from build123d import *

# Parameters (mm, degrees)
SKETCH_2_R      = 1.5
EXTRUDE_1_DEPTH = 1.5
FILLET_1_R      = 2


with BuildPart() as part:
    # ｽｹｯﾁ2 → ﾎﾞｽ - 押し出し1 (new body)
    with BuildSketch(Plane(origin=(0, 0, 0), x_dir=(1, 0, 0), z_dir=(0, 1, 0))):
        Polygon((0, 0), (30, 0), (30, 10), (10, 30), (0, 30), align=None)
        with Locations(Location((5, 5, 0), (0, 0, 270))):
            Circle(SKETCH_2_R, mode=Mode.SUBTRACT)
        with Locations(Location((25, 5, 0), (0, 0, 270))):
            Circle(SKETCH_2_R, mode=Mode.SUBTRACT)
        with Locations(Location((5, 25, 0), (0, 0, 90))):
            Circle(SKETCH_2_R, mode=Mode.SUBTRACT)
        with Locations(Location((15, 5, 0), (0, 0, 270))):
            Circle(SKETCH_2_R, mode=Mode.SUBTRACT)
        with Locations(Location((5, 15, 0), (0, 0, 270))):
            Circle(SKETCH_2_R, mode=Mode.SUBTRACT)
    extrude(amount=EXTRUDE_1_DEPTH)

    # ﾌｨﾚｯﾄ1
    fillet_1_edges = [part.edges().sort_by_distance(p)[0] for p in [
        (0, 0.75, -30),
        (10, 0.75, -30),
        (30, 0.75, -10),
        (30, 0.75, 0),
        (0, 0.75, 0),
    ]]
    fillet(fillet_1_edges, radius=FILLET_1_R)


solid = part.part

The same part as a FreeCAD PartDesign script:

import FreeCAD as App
import Part
import Sketcher
from FreeCAD import Vector
Q = App.Units.Quantity


def edges_at(feature, points):
    """Names of the edges that pass closest to the given points."""
    edges = feature.Shape.Edges
    near = lambda p: min(range(len(edges)), key=lambda i: edges[i].distToShape(Part.Vertex(*p))[0])
    return sorted({f"Edge{near(p) + 1}" for p in points})


def add_polygon(sketch, points):
    """Adds a closed chain of lines whose ends are joined by coincident constraints."""
    first, n = sketch.GeometryCount, len(points)
    for a, b in zip(points, points[1:] + points[:1]):
        sketch.addGeometry(Part.LineSegment(App.Vector(*a, 0), App.Vector(*b, 0)), False)
    for i in range(n):
        sketch.addConstraint(Sketcher.Constraint("Coincident", first + i, 2, first + (i + 1) % n, 1))

doc = App.newDocument("Part")
body = doc.addObject("PartDesign::Body", "Body")

# Sketch on XZ plane
sketch1 = body.newObject("Sketcher::SketchObject", "Sketch")
sketch1.AttachmentSupport = (doc.getObject("XZ_Plane"), [""])
sketch1.MapMode = "FlatFace"
add_polygon(sketch1, [(0, 0), (30, 0), (30, -10), (10, -30), (0, -30)])  # lines 0-4
sketch1.addGeometry(Part.Circle(Vector(5, -5, 0), Vector(0, 0, 1), 1.5), False)  # 5
sketch1.addGeometry(Part.Circle(Vector(15, -5, 0), Vector(0, 0, 1), 1.5), False)  # 6
sketch1.addGeometry(Part.Circle(Vector(25, -5, 0), Vector(0, 0, 1), 1.5), False)  # 7
sketch1.addGeometry(Part.Circle(Vector(5, -15, 0), Vector(0, 0, 1), 1.5), False)  # 8
sketch1.addGeometry(Part.Circle(Vector(5, -25, 0), Vector(0, 0, 1), 1.5), False)  # 9
sketch1.addConstraint([
    Sketcher.Constraint("Horizontal", 0),
    Sketcher.Constraint("Vertical", 1),
    Sketcher.Constraint("Horizontal", 3),
    Sketcher.Constraint("Vertical", 4),
    Sketcher.Constraint("Coincident", 4, 2, -1, 1),
    Sketcher.Constraint("Equal", 5, 6),
    Sketcher.Constraint("Equal", 6, 7),
    Sketcher.Constraint("Equal", 7, 8),
    Sketcher.Constraint("Equal", 8, 9),
    Sketcher.Constraint("Horizontal", 5, 3, 6, 3),
    Sketcher.Constraint("Horizontal", 6, 3, 7, 3),
    Sketcher.Constraint("Vertical", 5, 3, 8, 3),
    Sketcher.Constraint("Vertical", 8, 3, 9, 3),
    Sketcher.Constraint("Equal", 3, 1),
    Sketcher.Constraint("Equal", 0, 4),
    Sketcher.Constraint("Diameter", 5, Q("3 mm")),
    Sketcher.Constraint("DistanceX", 0, 1, 0, 2, Q("30 mm")),
    Sketcher.Constraint("DistanceX", 3, 2, 3, 1, Q("10 mm")),
    Sketcher.Constraint("DistanceX", -1, 1, 5, 3, Q("5 mm")),
    Sketcher.Constraint("DistanceY", 5, 3, -1, 1, Q("5 mm")),
    Sketcher.Constraint("DistanceX", -1, 1, 6, 3, Q("15 mm")),
    Sketcher.Constraint("DistanceX", -1, 1, 7, 3, Q("25 mm")),
    Sketcher.Constraint("DistanceY", 8, 3, -1, 1, Q("15 mm")),
    Sketcher.Constraint("DistanceY", 9, 3, -1, 1, Q("25 mm")),
])
pad1 = body.newObject("PartDesign::Pad", "Pad")
pad1.Profile = sketch1
pad1.Length = 1.5
pad1.Reversed = True
doc.recompute()

fillet = body.newObject("PartDesign::Fillet", "Fillet")
fillet.Base = (pad1, edges_at(pad1, [
    (0, 0.75, -30),
    (10, 0.75, -30),
    (30, 0.75, -10),
    (30, 0.75, 0),
    (0, 0.75, 0),
]))
fillet.Radius = 2

doc.recompute()
